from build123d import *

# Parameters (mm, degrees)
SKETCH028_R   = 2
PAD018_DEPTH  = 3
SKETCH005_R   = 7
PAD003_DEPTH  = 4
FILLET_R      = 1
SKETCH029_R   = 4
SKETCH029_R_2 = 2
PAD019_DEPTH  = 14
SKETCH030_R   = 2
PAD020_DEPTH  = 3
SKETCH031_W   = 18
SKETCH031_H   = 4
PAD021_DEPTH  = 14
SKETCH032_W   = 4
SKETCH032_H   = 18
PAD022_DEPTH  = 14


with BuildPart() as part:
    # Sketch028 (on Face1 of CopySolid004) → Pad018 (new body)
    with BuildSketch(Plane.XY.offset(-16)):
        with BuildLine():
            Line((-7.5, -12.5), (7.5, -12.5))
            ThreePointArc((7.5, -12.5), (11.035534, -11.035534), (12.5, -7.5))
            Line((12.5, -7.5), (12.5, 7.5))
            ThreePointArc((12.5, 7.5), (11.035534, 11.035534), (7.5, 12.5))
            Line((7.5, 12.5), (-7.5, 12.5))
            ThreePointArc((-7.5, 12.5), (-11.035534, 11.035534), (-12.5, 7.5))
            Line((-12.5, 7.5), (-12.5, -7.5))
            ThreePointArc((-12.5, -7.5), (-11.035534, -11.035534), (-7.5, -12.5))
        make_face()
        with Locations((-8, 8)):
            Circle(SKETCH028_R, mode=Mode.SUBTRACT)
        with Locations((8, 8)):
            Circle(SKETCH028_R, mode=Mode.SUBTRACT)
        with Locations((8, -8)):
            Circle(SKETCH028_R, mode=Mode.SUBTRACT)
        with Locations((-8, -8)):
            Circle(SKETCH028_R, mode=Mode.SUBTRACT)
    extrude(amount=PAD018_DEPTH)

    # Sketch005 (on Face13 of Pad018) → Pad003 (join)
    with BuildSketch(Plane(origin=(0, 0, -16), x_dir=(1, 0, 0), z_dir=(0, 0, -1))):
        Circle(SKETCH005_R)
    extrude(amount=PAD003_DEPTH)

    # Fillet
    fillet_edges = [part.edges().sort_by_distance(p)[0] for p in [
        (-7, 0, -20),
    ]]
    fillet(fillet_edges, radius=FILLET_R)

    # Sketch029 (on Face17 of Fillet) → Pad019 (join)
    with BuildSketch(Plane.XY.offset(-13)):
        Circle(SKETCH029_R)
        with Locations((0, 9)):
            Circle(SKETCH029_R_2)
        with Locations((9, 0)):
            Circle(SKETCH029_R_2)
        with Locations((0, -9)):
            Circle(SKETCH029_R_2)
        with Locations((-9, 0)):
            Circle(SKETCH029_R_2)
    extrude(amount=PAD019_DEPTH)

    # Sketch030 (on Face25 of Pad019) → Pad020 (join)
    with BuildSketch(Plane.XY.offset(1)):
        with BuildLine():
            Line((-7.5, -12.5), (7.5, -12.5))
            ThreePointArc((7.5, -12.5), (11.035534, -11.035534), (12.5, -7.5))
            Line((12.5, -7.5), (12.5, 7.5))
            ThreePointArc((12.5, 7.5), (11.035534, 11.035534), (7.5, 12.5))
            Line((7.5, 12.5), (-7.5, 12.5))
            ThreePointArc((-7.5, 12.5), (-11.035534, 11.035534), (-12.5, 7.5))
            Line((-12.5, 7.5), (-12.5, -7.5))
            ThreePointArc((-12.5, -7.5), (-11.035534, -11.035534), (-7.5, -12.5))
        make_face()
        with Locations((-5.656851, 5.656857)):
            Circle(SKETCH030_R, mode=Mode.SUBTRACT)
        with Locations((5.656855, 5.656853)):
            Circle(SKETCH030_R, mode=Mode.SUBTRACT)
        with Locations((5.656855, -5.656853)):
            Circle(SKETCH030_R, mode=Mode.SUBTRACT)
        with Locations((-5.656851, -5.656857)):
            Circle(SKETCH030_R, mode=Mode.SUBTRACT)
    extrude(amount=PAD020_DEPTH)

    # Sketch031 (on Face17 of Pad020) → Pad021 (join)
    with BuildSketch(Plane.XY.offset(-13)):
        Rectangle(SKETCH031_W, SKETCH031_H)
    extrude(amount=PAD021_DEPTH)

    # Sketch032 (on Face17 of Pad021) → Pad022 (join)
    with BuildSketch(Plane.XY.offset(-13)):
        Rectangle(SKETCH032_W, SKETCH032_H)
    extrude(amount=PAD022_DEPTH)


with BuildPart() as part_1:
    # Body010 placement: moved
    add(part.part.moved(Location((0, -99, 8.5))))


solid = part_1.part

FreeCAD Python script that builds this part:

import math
import FreeCAD as App
import Part
import Sketcher
from FreeCAD import Vector
Q = App.Units.Quantity


def edges_at(feature, points):
    """Names of the edges that pass closest to the given points."""
    edges = feature.Shape.Edges
    near = lambda p: min(range(len(edges)), key=lambda i: edges[i].distToShape(Part.Vertex(*p))[0])
    return sorted({f"Edge{near(p) + 1}" for p in points})

doc = App.newDocument("Part")
params = doc.addObject("Spreadsheet::Sheet", "Params")
for row, (alias, value) in enumerate([
    ("sketch1_diameter", "4 mm"),
    ("sketch1_radius", "5 mm"),
    ("sketch1_width", "15 mm"),
    ("pad1_length", "3 mm"),
    ("sketch2_diameter", "14 mm"),
    ("pad2_length", "4 mm"),
    ("fillet_radius", "1 mm"),
    ("sketch3_diameter", "8 mm"),
    ("sketch3_diameter2", "4 mm"),
    ("pad3_length", "14 mm"),
    ("sketch4_diameter", "4 mm"),
    ("sketch4_radius", "5 mm"),
    ("sketch4_width", "15 mm"),
    ("pad4_length", "3 mm"),
    ("sketch5_width", "18 mm"),
    ("sketch5_height", "4 mm"),
    ("pad5_length", "14 mm"),
    ("sketch6_width", "4 mm"),
    ("sketch6_height", "18 mm"),
    ("pad6_length", "14 mm"),
], start=1):
    params.set(f"A{row}", alias)
    params.set(f"B{row}", "=" + value)
    params.setAlias(f"B{row}", alias)

body = doc.addObject("PartDesign::Body", "Body")

sketch1 = doc.addObject("Sketcher::SketchObject", "Sketch")
body.addObject(sketch1)
sketch1.AttachmentSupport = (doc.XY_Plane, [""])
sketch1.MapMode = "FlatFace"
sketch1.AttachmentOffset = App.Placement(Vector(0, 0, -16), App.Rotation())
sketch1.addGeometry([
    Part.LineSegment(Vector(-7.5, -12.5, 0), Vector(7.5, -12.5, 0)),
    Part.ArcOfCircle(Part.Circle(Vector(7.5, -7.5, 0), Vector(0, 0, 1), 5), math.radians(-90), math.radians(0)),
    Part.LineSegment(Vector(12.5, -7.5, 0), Vector(12.5, 7.5, 0)),
    Part.ArcOfCircle(Part.Circle(Vector(7.5, 7.5, 0), Vector(0, 0, 1), 5), math.radians(0), math.radians(90)),
    Part.LineSegment(Vector(7.5, 12.5, 0), Vector(-7.5, 12.5, 0)),
    Part.ArcOfCircle(Part.Circle(Vector(-7.5, 7.5, 0), Vector(0, 0, 1), 5), math.radians(90), math.radians(180)),
    Part.LineSegment(Vector(-12.5, 7.5, 0), Vector(-12.5, -7.5, 0)),
    Part.ArcOfCircle(Part.Circle(Vector(-7.5, -7.5, 0), Vector(0, 0, 1), 5), math.radians(180), math.radians(270)),
    Part.Circle(Vector(-8, -8, 0), Vector(0, 0, 1), 2),
    Part.Circle(Vector(8, -8, 0), Vector(0, 0, 1), 2),
    Part.Circle(Vector(-8, 8, 0), Vector(0, 0, 1), 2),
    Part.Circle(Vector(8, 8, 0), Vector(0, 0, 1), 2),
], False)
sketch1.addConstraint([
    Sketcher.Constraint("Tangent", 0, 2, 1, 1),
    Sketcher.Constraint("Tangent", 1, 2, 2, 1),
    Sketcher.Constraint("Tangent", 2, 2, 3, 1),
    Sketcher.Constraint("Tangent", 3, 2, 4, 1),
    Sketcher.Constraint("Tangent", 4, 2, 5, 1),
    Sketcher.Constraint("Tangent", 5, 2, 6, 1),
    Sketcher.Constraint("Tangent", 6, 2, 7, 1),
    Sketcher.Constraint("Tangent", 7, 2, 0, 1),
    Sketcher.Constraint("Horizontal", 0),
    Sketcher.Constraint("Vertical", 2),
    Sketcher.Constraint("Horizontal", 4),
    Sketcher.Constraint("Vertical", 6),
    Sketcher.Constraint("Equal", 1, 3),
    Sketcher.Constraint("Equal", 3, 5),
    Sketcher.Constraint("Equal", 5, 7),
    Sketcher.Constraint("Equal", 8, 9),
    Sketcher.Constraint("Equal", 9, 10),
    Sketcher.Constraint("Equal", 10, 11),
    Sketcher.Constraint("Symmetric", 1, 3, 5, 3, -1, 1),
    Sketcher.Constraint("Symmetric", 9, 3, 10, 3, -1, 1),
    Sketcher.Constraint("Symmetric", 8, 3, 11, 3, -1, 1),
    Sketcher.Constraint("Symmetric", 8, 3, 9, 3, -2),
    Sketcher.Constraint("Equal", 4, 2),
    Sketcher.Constraint("Diameter", 8, Q("4 mm")),
    Sketcher.Constraint("Radius", 1, Q("5 mm")),
    Sketcher.Constraint("DistanceX", 0, 1, 0, 2, Q("15 mm")),
    Sketcher.Constraint("DistanceX", 8, 3, -1, 1, Q("8 mm")),
    Sketcher.Constraint("DistanceY", 8, 3, -1, 1, Q("8 mm")),
])
sketch1.setExpression("Constraints[23]", "Params.sketch1_diameter")
sketch1.setExpression("Constraints[24]", "Params.sketch1_radius")
sketch1.setExpression("Constraints[25]", "Params.sketch1_width")
pad1 = doc.addObject("PartDesign::Pad", "Pad")
body.addObject(pad1)
pad1.Profile = sketch1
pad1.setExpression("Length", "Params.pad1_length")

sketch2 = doc.addObject("Sketcher::SketchObject", "Sketch001")
body.addObject(sketch2)
sketch2.AttachmentSupport = (doc.XY_Plane, [""])
sketch2.MapMode = "FlatFace"
sketch2.AttachmentOffset = App.Placement(Vector(0, 0, -16), App.Rotation())
sketch2.addGeometry(Part.Circle(Vector(0, 0, 0), Vector(0, 0, 1), 7), False)
sketch2.addConstraint([
    Sketcher.Constraint("Coincident", 0, 3, -1, 1),
    Sketcher.Constraint("Diameter", 0, Q("14 mm")),
])
sketch2.setExpression("Constraints[1]", "Params.sketch2_diameter")
pad2 = doc.addObject("PartDesign::Pad", "Pad001")
body.addObject(pad2)
pad2.Profile = sketch2
pad2.setExpression("Length", "Params.pad2_length")
pad2.Reversed = True
doc.recompute()

fillet = doc.addObject("PartDesign::Fillet", "Fillet")
body.addObject(fillet)
fillet.Base = (pad2, edges_at(pad2, [(-7, 0, -20)]))
fillet.setExpression("Radius", "Params.fillet_radius")

sketch3 = doc.addObject("Sketcher::SketchObject", "Sketch002")
body.addObject(sketch3)
sketch3.AttachmentSupport = (doc.XY_Plane, [""])
sketch3.MapMode = "FlatFace"
sketch3.AttachmentOffset = App.Placement(Vector(0, 0, -13), App.Rotation())
sketch3.addGeometry([
    Part.Circle(Vector(0, 0, 0), Vector(0, 0, 1), 4),
    Part.Circle(Vector(0, 9, 0), Vector(0, 0, 1), 2),
    Part.Circle(Vector(9, 0, 0), Vector(0, 0, 1), 2),
    Part.Circle(Vector(0, -9, 0), Vector(0, 0, 1), 2),
    Part.Circle(Vector(-9, 0, 0), Vector(0, 0, 1), 2),
], False)
sketch3.addConstraint([
    Sketcher.Constraint("Coincident", 0, 3, -1, 1),
    Sketcher.Constraint("Equal", 1, 2),
    Sketcher.Constraint("Equal", 2, 3),
    Sketcher.Constraint("Equal", 3, 4),
    Sketcher.Constraint("Symmetric", 1, 3, 3, 3, -1, 1),
    Sketcher.Constraint("Symmetric", 2, 3, 4, 3, -1, 1),
    Sketcher.Constraint("PointOnObject", 1, 3, -2),
    Sketcher.Constraint("PointOnObject", 2, 3, -1),
    Sketcher.Constraint("Diameter", 0, Q("8 mm")),
    Sketcher.Constraint("Diameter", 1, Q("4 mm")),
    Sketcher.Constraint("DistanceY", -1, 1, 1, 3, Q("9 mm")),
    Sketcher.Constraint("DistanceX", -1, 1, 2, 3, Q("9 mm")),
])
sketch3.setExpression("Constraints[8]", "Params.sketch3_diameter")
sketch3.setExpression("Constraints[9]", "Params.sketch3_diameter2")
pad3 = doc.addObject("PartDesign::Pad", "Pad002")
body.addObject(pad3)
pad3.Profile = sketch3
pad3.setExpression("Length", "Params.pad3_length")

sketch4 = doc.addObject("Sketcher::SketchObject", "Sketch003")
body.addObject(sketch4)
sketch4.AttachmentSupport = (doc.XY_Plane, [""])
sketch4.MapMode = "FlatFace"
sketch4.AttachmentOffset = App.Placement(Vector(0, 0, 1), App.Rotation())
sketch4.addGeometry([
    Part.LineSegment(Vector(-7.5, -12.5, 0), Vector(7.5, -12.5, 0)),
    Part.ArcOfCircle(Part.Circle(Vector(7.5, -7.5, 0), Vector(0, 0, 1), 5), math.radians(-90), math.radians(0)),
    Part.LineSegment(Vector(12.5, -7.5, 0), Vector(12.5, 7.5, 0)),
    Part.ArcOfCircle(Part.Circle(Vector(7.5, 7.5, 0), Vector(0, 0, 1), 5), math.radians(0), math.radians(90)),
    Part.LineSegment(Vector(7.5, 12.5, 0), Vector(-7.5, 12.5, 0)),
    Part.ArcOfCircle(Part.Circle(Vector(-7.5, 7.5, 0), Vector(0, 0, 1), 5), math.radians(90), math.radians(180)),
    Part.LineSegment(Vector(-12.5, 7.5, 0), Vector(-12.5, -7.5, 0)),
    Part.ArcOfCircle(Part.Circle(Vector(-7.5, -7.5, 0), Vector(0, 0, 1), 5), math.radians(180), math.radians(270)),
    Part.Circle(Vector(-5.7, -5.7, 0), Vector(0, 0, 1), 2),
    Part.Circle(Vector(5.7, -5.7, 0), Vector(0, 0, 1), 2),
    Part.Circle(Vector(-5.7, 5.7, 0), Vector(0, 0, 1), 2),
    Part.Circle(Vector(5.7, 5.7, 0), Vector(0, 0, 1), 2),
], False)
sketch4.addConstraint([
    Sketcher.Constraint("Tangent", 0, 2, 1, 1),
    Sketcher.Constraint("Tangent", 1, 2, 2, 1),
    Sketcher.Constraint("Tangent", 2, 2, 3, 1),
    Sketcher.Constraint("Tangent", 3, 2, 4, 1),
    Sketcher.Constraint("Tangent", 4, 2, 5, 1),
    Sketcher.Constraint("Tangent", 5, 2, 6, 1),
    Sketcher.Constraint("Tangent", 6, 2, 7, 1),
    Sketcher.Constraint("Tangent", 7, 2, 0, 1),
    Sketcher.Constraint("Horizontal", 0),
    Sketcher.Constraint("Vertical", 2),
    Sketcher.Constraint("Horizontal", 4),
    Sketcher.Constraint("Vertical", 6),
    Sketcher.Constraint("Equal", 1, 3),
    Sketcher.Constraint("Equal", 3, 5),
    Sketcher.Constraint("Equal", 5, 7),
    Sketcher.Constraint("Equal", 8, 9),
    Sketcher.Constraint("Equal", 9, 10),
    Sketcher.Constraint("Equal", 10, 11),
    Sketcher.Constraint("Symmetric", 1, 3, 5, 3, -1, 1),
    Sketcher.Constraint("Symmetric", 9, 3, 10, 3, -1, 1),
    Sketcher.Constraint("Symmetric", 8, 3, 11, 3, -1, 1),
    Sketcher.Constraint("Symmetric", 8, 3, 9, 3, -2),
    Sketcher.Constraint("Equal", 4, 2),
    Sketcher.Constraint("Diameter", 8, Q("4 mm")),
    Sketcher.Constraint("Radius", 1, Q("5 mm")),
    Sketcher.Constraint("DistanceX", 0, 1, 0, 2, Q("15 mm")),
    Sketcher.Constraint("DistanceX", 8, 3, -1, 1, Q("5.656851 mm")),
    Sketcher.Constraint("DistanceY", 9, 3, 10, 3, Q("11.31371 mm")),
])
sketch4.setExpression("Constraints[23]", "Params.sketch4_diameter")
sketch4.setExpression("Constraints[24]", "Params.sketch4_radius")
sketch4.setExpression("Constraints[25]", "Params.sketch4_width")
pad4 = doc.addObject("PartDesign::Pad", "Pad003")
body.addObject(pad4)
pad4.Profile = sketch4
pad4.setExpression("Length", "Params.pad4_length")

sketch5 = doc.addObject("Sketcher::SketchObject", "Sketch004")
body.addObject(sketch5)
sketch5.AttachmentSupport = (doc.XY_Plane, [""])
sketch5.MapMode = "FlatFace"
sketch5.AttachmentOffset = App.Placement(Vector(0, 0, -13), App.Rotation())
sketch5.addGeometry([
    Part.LineSegment(Vector(-9, 2, 0), Vector(-9, -2, 0)),
    Part.LineSegment(Vector(-9, -2, 0), Vector(9, -2, 0)),
    Part.LineSegment(Vector(9, -2, 0), Vector(9, 2, 0)),
    Part.LineSegment(Vector(9, 2, 0), Vector(-9, 2, 0)),
], False)
sketch5.addConstraint([
    Sketcher.Constraint("Coincident", 0, 2, 1, 1),
    Sketcher.Constraint("Coincident", 1, 2, 2, 1),
    Sketcher.Constraint("Coincident", 2, 2, 3, 1),
    Sketcher.Constraint("Coincident", 3, 2, 0, 1),
    Sketcher.Constraint("Vertical", 0),
    Sketcher.Constraint("Horizontal", 1),
    Sketcher.Constraint("Vertical", 2),
    Sketcher.Constraint("Horizontal", 3),
    Sketcher.Constraint("Symmetric", 0, 2, 2, 2, -1, 1),
    Sketcher.Constraint("DistanceX", 1, 1, 1, 2, Q("18 mm")),
    Sketcher.Constraint("DistanceY", 0, 2, 0, 1, Q("4 mm")),
])
sketch5.setExpression("Constraints[9]", "Params.sketch5_width")
sketch5.setExpression("Constraints[10]", "Params.sketch5_height")
pad5 = doc.addObject("PartDesign::Pad", "Pad004")
body.addObject(pad5)
pad5.Profile = sketch5
pad5.setExpression("Length", "Params.pad5_length")

sketch6 = doc.addObject("Sketcher::SketchObject", "Sketch005")
body.addObject(sketch6)
sketch6.AttachmentSupport = (doc.XY_Plane, [""])
sketch6.MapMode = "FlatFace"
sketch6.AttachmentOffset = App.Placement(Vector(0, 0, -13), App.Rotation())
sketch6.addGeometry([
    Part.LineSegment(Vector(-2, 9, 0), Vector(-2, -9, 0)),
    Part.LineSegment(Vector(-2, -9, 0), Vector(2, -9, 0)),
    Part.LineSegment(Vector(2, -9, 0), Vector(2, 9, 0)),
    Part.LineSegment(Vector(2, 9, 0), Vector(-2, 9, 0)),
], False)
sketch6.addConstraint([
    Sketcher.Constraint("Coincident", 0, 2, 1, 1),
    Sketcher.Constraint("Coincident", 1, 2, 2, 1),
    Sketcher.Constraint("Coincident", 2, 2, 3, 1),
    Sketcher.Constraint("Coincident", 3, 2, 0, 1),
    Sketcher.Constraint("Vertical", 0),
    Sketcher.Constraint("Horizontal", 1),
    Sketcher.Constraint("Vertical", 2),
    Sketcher.Constraint("Horizontal", 3),
    Sketcher.Constraint("Symmetric", 0, 2, 2, 2, -1, 1),
    Sketcher.Constraint("DistanceX", 1, 1, 1, 2, Q("4 mm")),
    Sketcher.Constraint("DistanceY", 0, 2, 0, 1, Q("18 mm")),
])
sketch6.setExpression("Constraints[9]", "Params.sketch6_width")
sketch6.setExpression("Constraints[10]", "Params.sketch6_height")
pad6 = doc.addObject("PartDesign::Pad", "Pad005")
body.addObject(pad6)
pad6.Profile = sketch6
pad6.setExpression("Length", "Params.pad6_length")
body2 = doc.addObject("PartDesign::Body", "Body001")
doc.recompute()

body.Placement = App.Placement(Vector(0, -99, 8.5), App.Rotation(Vector(0, 0, 1), 0))
boolean = doc.addObject("PartDesign::Boolean", "Boolean")
body2.addObject(boolean)
boolean.Type = "Fuse"
boolean.addObjects([body])

doc.recompute()
